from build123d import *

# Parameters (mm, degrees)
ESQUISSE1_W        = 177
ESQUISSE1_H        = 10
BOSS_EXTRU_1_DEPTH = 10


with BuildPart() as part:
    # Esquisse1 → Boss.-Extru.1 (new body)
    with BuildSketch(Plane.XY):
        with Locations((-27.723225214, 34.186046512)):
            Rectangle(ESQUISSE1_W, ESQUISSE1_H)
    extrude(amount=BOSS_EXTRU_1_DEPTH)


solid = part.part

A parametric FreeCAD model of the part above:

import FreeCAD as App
import Part
import Sketcher
from FreeCAD import Vector
Q = App.Units.Quantity

doc = App.newDocument("Part")
body = doc.addObject("PartDesign::Body", "Body")

# Sketch on XY plane
sketch1 = body.newObject("Sketcher::SketchObject", "Sketch")
sketch1.AttachmentSupport = (doc.getObject("XY_Plane"), [""])
sketch1.MapMode = "FlatFace"
sketch1.addGeometry([
    Part.LineSegment(Vector(-116, 39, 0), Vector(-116, 29, 0)),
    Part.LineSegment(Vector(-116, 29, 0), Vector(61, 29, 0)),
    Part.LineSegment(Vector(61, 29, 0), Vector(61, 39, 0)),
    Part.LineSegment(Vector(61, 39, 0), Vector(-116, 39, 0)),
], False)
sketch1.addConstraint([
    Sketcher.Constraint("Coincident", 0, 2, 1, 1),
    Sketcher.Constraint("Coincident", 1, 2, 2, 1),
    Sketcher.Constraint("Coincident", 2, 2, 3, 1),
    Sketcher.Constraint("Coincident", 3, 2, 0, 1),
    Sketcher.Constraint("Vertical", 0),
    Sketcher.Constraint("Horizontal", 1),
    Sketcher.Constraint("Vertical", 2),
    Sketcher.Constraint("Horizontal", 3),
    Sketcher.Constraint("DistanceX", 1, 1, 1, 2, Q("177 mm")),
    Sketcher.Constraint("DistanceY", 0, 2, 0, 1, Q("10 mm")),
    Sketcher.Constraint("DistanceX", 0, 2, -1, 1, Q("116.223225 mm")),
    Sketcher.Constraint("DistanceY", -1, 1, 0, 2, Q("29.186047 mm")),
])
pad1 = body.newObject("PartDesign::Pad", "Pad")
pad1.Profile = sketch1
pad1.Length = 10

doc.recompute()
